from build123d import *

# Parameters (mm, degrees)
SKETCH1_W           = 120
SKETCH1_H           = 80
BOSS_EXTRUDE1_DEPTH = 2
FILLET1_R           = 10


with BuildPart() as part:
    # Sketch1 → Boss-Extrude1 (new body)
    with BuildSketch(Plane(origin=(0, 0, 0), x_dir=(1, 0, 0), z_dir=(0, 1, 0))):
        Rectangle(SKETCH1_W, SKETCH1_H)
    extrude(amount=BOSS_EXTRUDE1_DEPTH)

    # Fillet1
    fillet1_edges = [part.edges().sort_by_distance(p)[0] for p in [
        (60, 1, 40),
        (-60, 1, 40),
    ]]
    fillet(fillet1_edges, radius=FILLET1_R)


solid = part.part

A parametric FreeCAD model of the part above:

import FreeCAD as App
import Part
import Sketcher


def edges_at(feature, points):
    """Names of the edges that pass closest to the given points."""
    edges = feature.Shape.Edges
    near = lambda p: min(range(len(edges)), key=lambda i: edges[i].distToShape(Part.Vertex(*p))[0])
    return sorted({f"Edge{near(p) + 1}" for p in points})

doc = App.newDocument("Part")
body = doc.addObject("PartDesign::Body", "Body")

# Sketch on XZ plane
sketch1 = body.newObject("Sketcher::SketchObject", "Sketch")
sketch1.AttachmentSupport = (doc.getObject("XZ_Plane"), [""])
sketch1.MapMode = "FlatFace"
sketch1.addGeometry(Part.LineSegment(App.Vector(-60, -40, 0), App.Vector(-60, 40, 0)), False)
sketch1.addGeometry(Part.LineSegment(App.Vector(-60, 40, 0), App.Vector(60, 40, 0)), False)
sketch1.addGeometry(Part.LineSegment(App.Vector(60, 40, 0), App.Vector(60, -40, 0)), False)
sketch1.addGeometry(Part.LineSegment(App.Vector(60, -40, 0), App.Vector(-60, -40, 0)), False)
sketch1.addConstraint(Sketcher.Constraint("Coincident", 0, 2, 1, 1))
sketch1.addConstraint(Sketcher.Constraint("Coincident", 1, 2, 2, 1))
sketch1.addConstraint(Sketcher.Constraint("Coincident", 2, 2, 3, 1))
sketch1.addConstraint(Sketcher.Constraint("Coincident", 3, 2, 0, 1))
sketch1.addConstraint(Sketcher.Constraint("Vertical", 0))
sketch1.addConstraint(Sketcher.Constraint("Horizontal", 1))
sketch1.addConstraint(Sketcher.Constraint("Vertical", 2))
sketch1.addConstraint(Sketcher.Constraint("Horizontal", 3))
sketch1.addConstraint(Sketcher.Constraint("Symmetric", 0, 2, 2, 2, -1, 1))
sketch1.addConstraint(Sketcher.Constraint("DistanceX", 1, 1, 1, 2, 120.0))
sketch1.addConstraint(Sketcher.Constraint("DistanceY", 0, 1, 0, 2, 80.0))
pad1 = body.newObject("PartDesign::Pad", "Pad")
pad1.Profile = sketch1
pad1.Length = 2
pad1.Reversed = True
doc.recompute()

fillet = body.newObject("PartDesign::Fillet", "Fillet")
fillet.Base = (pad1, edges_at(pad1, [(60, 1, 40), (-60, 1, 40)]))
fillet.Radius = 10

doc.recompute()
